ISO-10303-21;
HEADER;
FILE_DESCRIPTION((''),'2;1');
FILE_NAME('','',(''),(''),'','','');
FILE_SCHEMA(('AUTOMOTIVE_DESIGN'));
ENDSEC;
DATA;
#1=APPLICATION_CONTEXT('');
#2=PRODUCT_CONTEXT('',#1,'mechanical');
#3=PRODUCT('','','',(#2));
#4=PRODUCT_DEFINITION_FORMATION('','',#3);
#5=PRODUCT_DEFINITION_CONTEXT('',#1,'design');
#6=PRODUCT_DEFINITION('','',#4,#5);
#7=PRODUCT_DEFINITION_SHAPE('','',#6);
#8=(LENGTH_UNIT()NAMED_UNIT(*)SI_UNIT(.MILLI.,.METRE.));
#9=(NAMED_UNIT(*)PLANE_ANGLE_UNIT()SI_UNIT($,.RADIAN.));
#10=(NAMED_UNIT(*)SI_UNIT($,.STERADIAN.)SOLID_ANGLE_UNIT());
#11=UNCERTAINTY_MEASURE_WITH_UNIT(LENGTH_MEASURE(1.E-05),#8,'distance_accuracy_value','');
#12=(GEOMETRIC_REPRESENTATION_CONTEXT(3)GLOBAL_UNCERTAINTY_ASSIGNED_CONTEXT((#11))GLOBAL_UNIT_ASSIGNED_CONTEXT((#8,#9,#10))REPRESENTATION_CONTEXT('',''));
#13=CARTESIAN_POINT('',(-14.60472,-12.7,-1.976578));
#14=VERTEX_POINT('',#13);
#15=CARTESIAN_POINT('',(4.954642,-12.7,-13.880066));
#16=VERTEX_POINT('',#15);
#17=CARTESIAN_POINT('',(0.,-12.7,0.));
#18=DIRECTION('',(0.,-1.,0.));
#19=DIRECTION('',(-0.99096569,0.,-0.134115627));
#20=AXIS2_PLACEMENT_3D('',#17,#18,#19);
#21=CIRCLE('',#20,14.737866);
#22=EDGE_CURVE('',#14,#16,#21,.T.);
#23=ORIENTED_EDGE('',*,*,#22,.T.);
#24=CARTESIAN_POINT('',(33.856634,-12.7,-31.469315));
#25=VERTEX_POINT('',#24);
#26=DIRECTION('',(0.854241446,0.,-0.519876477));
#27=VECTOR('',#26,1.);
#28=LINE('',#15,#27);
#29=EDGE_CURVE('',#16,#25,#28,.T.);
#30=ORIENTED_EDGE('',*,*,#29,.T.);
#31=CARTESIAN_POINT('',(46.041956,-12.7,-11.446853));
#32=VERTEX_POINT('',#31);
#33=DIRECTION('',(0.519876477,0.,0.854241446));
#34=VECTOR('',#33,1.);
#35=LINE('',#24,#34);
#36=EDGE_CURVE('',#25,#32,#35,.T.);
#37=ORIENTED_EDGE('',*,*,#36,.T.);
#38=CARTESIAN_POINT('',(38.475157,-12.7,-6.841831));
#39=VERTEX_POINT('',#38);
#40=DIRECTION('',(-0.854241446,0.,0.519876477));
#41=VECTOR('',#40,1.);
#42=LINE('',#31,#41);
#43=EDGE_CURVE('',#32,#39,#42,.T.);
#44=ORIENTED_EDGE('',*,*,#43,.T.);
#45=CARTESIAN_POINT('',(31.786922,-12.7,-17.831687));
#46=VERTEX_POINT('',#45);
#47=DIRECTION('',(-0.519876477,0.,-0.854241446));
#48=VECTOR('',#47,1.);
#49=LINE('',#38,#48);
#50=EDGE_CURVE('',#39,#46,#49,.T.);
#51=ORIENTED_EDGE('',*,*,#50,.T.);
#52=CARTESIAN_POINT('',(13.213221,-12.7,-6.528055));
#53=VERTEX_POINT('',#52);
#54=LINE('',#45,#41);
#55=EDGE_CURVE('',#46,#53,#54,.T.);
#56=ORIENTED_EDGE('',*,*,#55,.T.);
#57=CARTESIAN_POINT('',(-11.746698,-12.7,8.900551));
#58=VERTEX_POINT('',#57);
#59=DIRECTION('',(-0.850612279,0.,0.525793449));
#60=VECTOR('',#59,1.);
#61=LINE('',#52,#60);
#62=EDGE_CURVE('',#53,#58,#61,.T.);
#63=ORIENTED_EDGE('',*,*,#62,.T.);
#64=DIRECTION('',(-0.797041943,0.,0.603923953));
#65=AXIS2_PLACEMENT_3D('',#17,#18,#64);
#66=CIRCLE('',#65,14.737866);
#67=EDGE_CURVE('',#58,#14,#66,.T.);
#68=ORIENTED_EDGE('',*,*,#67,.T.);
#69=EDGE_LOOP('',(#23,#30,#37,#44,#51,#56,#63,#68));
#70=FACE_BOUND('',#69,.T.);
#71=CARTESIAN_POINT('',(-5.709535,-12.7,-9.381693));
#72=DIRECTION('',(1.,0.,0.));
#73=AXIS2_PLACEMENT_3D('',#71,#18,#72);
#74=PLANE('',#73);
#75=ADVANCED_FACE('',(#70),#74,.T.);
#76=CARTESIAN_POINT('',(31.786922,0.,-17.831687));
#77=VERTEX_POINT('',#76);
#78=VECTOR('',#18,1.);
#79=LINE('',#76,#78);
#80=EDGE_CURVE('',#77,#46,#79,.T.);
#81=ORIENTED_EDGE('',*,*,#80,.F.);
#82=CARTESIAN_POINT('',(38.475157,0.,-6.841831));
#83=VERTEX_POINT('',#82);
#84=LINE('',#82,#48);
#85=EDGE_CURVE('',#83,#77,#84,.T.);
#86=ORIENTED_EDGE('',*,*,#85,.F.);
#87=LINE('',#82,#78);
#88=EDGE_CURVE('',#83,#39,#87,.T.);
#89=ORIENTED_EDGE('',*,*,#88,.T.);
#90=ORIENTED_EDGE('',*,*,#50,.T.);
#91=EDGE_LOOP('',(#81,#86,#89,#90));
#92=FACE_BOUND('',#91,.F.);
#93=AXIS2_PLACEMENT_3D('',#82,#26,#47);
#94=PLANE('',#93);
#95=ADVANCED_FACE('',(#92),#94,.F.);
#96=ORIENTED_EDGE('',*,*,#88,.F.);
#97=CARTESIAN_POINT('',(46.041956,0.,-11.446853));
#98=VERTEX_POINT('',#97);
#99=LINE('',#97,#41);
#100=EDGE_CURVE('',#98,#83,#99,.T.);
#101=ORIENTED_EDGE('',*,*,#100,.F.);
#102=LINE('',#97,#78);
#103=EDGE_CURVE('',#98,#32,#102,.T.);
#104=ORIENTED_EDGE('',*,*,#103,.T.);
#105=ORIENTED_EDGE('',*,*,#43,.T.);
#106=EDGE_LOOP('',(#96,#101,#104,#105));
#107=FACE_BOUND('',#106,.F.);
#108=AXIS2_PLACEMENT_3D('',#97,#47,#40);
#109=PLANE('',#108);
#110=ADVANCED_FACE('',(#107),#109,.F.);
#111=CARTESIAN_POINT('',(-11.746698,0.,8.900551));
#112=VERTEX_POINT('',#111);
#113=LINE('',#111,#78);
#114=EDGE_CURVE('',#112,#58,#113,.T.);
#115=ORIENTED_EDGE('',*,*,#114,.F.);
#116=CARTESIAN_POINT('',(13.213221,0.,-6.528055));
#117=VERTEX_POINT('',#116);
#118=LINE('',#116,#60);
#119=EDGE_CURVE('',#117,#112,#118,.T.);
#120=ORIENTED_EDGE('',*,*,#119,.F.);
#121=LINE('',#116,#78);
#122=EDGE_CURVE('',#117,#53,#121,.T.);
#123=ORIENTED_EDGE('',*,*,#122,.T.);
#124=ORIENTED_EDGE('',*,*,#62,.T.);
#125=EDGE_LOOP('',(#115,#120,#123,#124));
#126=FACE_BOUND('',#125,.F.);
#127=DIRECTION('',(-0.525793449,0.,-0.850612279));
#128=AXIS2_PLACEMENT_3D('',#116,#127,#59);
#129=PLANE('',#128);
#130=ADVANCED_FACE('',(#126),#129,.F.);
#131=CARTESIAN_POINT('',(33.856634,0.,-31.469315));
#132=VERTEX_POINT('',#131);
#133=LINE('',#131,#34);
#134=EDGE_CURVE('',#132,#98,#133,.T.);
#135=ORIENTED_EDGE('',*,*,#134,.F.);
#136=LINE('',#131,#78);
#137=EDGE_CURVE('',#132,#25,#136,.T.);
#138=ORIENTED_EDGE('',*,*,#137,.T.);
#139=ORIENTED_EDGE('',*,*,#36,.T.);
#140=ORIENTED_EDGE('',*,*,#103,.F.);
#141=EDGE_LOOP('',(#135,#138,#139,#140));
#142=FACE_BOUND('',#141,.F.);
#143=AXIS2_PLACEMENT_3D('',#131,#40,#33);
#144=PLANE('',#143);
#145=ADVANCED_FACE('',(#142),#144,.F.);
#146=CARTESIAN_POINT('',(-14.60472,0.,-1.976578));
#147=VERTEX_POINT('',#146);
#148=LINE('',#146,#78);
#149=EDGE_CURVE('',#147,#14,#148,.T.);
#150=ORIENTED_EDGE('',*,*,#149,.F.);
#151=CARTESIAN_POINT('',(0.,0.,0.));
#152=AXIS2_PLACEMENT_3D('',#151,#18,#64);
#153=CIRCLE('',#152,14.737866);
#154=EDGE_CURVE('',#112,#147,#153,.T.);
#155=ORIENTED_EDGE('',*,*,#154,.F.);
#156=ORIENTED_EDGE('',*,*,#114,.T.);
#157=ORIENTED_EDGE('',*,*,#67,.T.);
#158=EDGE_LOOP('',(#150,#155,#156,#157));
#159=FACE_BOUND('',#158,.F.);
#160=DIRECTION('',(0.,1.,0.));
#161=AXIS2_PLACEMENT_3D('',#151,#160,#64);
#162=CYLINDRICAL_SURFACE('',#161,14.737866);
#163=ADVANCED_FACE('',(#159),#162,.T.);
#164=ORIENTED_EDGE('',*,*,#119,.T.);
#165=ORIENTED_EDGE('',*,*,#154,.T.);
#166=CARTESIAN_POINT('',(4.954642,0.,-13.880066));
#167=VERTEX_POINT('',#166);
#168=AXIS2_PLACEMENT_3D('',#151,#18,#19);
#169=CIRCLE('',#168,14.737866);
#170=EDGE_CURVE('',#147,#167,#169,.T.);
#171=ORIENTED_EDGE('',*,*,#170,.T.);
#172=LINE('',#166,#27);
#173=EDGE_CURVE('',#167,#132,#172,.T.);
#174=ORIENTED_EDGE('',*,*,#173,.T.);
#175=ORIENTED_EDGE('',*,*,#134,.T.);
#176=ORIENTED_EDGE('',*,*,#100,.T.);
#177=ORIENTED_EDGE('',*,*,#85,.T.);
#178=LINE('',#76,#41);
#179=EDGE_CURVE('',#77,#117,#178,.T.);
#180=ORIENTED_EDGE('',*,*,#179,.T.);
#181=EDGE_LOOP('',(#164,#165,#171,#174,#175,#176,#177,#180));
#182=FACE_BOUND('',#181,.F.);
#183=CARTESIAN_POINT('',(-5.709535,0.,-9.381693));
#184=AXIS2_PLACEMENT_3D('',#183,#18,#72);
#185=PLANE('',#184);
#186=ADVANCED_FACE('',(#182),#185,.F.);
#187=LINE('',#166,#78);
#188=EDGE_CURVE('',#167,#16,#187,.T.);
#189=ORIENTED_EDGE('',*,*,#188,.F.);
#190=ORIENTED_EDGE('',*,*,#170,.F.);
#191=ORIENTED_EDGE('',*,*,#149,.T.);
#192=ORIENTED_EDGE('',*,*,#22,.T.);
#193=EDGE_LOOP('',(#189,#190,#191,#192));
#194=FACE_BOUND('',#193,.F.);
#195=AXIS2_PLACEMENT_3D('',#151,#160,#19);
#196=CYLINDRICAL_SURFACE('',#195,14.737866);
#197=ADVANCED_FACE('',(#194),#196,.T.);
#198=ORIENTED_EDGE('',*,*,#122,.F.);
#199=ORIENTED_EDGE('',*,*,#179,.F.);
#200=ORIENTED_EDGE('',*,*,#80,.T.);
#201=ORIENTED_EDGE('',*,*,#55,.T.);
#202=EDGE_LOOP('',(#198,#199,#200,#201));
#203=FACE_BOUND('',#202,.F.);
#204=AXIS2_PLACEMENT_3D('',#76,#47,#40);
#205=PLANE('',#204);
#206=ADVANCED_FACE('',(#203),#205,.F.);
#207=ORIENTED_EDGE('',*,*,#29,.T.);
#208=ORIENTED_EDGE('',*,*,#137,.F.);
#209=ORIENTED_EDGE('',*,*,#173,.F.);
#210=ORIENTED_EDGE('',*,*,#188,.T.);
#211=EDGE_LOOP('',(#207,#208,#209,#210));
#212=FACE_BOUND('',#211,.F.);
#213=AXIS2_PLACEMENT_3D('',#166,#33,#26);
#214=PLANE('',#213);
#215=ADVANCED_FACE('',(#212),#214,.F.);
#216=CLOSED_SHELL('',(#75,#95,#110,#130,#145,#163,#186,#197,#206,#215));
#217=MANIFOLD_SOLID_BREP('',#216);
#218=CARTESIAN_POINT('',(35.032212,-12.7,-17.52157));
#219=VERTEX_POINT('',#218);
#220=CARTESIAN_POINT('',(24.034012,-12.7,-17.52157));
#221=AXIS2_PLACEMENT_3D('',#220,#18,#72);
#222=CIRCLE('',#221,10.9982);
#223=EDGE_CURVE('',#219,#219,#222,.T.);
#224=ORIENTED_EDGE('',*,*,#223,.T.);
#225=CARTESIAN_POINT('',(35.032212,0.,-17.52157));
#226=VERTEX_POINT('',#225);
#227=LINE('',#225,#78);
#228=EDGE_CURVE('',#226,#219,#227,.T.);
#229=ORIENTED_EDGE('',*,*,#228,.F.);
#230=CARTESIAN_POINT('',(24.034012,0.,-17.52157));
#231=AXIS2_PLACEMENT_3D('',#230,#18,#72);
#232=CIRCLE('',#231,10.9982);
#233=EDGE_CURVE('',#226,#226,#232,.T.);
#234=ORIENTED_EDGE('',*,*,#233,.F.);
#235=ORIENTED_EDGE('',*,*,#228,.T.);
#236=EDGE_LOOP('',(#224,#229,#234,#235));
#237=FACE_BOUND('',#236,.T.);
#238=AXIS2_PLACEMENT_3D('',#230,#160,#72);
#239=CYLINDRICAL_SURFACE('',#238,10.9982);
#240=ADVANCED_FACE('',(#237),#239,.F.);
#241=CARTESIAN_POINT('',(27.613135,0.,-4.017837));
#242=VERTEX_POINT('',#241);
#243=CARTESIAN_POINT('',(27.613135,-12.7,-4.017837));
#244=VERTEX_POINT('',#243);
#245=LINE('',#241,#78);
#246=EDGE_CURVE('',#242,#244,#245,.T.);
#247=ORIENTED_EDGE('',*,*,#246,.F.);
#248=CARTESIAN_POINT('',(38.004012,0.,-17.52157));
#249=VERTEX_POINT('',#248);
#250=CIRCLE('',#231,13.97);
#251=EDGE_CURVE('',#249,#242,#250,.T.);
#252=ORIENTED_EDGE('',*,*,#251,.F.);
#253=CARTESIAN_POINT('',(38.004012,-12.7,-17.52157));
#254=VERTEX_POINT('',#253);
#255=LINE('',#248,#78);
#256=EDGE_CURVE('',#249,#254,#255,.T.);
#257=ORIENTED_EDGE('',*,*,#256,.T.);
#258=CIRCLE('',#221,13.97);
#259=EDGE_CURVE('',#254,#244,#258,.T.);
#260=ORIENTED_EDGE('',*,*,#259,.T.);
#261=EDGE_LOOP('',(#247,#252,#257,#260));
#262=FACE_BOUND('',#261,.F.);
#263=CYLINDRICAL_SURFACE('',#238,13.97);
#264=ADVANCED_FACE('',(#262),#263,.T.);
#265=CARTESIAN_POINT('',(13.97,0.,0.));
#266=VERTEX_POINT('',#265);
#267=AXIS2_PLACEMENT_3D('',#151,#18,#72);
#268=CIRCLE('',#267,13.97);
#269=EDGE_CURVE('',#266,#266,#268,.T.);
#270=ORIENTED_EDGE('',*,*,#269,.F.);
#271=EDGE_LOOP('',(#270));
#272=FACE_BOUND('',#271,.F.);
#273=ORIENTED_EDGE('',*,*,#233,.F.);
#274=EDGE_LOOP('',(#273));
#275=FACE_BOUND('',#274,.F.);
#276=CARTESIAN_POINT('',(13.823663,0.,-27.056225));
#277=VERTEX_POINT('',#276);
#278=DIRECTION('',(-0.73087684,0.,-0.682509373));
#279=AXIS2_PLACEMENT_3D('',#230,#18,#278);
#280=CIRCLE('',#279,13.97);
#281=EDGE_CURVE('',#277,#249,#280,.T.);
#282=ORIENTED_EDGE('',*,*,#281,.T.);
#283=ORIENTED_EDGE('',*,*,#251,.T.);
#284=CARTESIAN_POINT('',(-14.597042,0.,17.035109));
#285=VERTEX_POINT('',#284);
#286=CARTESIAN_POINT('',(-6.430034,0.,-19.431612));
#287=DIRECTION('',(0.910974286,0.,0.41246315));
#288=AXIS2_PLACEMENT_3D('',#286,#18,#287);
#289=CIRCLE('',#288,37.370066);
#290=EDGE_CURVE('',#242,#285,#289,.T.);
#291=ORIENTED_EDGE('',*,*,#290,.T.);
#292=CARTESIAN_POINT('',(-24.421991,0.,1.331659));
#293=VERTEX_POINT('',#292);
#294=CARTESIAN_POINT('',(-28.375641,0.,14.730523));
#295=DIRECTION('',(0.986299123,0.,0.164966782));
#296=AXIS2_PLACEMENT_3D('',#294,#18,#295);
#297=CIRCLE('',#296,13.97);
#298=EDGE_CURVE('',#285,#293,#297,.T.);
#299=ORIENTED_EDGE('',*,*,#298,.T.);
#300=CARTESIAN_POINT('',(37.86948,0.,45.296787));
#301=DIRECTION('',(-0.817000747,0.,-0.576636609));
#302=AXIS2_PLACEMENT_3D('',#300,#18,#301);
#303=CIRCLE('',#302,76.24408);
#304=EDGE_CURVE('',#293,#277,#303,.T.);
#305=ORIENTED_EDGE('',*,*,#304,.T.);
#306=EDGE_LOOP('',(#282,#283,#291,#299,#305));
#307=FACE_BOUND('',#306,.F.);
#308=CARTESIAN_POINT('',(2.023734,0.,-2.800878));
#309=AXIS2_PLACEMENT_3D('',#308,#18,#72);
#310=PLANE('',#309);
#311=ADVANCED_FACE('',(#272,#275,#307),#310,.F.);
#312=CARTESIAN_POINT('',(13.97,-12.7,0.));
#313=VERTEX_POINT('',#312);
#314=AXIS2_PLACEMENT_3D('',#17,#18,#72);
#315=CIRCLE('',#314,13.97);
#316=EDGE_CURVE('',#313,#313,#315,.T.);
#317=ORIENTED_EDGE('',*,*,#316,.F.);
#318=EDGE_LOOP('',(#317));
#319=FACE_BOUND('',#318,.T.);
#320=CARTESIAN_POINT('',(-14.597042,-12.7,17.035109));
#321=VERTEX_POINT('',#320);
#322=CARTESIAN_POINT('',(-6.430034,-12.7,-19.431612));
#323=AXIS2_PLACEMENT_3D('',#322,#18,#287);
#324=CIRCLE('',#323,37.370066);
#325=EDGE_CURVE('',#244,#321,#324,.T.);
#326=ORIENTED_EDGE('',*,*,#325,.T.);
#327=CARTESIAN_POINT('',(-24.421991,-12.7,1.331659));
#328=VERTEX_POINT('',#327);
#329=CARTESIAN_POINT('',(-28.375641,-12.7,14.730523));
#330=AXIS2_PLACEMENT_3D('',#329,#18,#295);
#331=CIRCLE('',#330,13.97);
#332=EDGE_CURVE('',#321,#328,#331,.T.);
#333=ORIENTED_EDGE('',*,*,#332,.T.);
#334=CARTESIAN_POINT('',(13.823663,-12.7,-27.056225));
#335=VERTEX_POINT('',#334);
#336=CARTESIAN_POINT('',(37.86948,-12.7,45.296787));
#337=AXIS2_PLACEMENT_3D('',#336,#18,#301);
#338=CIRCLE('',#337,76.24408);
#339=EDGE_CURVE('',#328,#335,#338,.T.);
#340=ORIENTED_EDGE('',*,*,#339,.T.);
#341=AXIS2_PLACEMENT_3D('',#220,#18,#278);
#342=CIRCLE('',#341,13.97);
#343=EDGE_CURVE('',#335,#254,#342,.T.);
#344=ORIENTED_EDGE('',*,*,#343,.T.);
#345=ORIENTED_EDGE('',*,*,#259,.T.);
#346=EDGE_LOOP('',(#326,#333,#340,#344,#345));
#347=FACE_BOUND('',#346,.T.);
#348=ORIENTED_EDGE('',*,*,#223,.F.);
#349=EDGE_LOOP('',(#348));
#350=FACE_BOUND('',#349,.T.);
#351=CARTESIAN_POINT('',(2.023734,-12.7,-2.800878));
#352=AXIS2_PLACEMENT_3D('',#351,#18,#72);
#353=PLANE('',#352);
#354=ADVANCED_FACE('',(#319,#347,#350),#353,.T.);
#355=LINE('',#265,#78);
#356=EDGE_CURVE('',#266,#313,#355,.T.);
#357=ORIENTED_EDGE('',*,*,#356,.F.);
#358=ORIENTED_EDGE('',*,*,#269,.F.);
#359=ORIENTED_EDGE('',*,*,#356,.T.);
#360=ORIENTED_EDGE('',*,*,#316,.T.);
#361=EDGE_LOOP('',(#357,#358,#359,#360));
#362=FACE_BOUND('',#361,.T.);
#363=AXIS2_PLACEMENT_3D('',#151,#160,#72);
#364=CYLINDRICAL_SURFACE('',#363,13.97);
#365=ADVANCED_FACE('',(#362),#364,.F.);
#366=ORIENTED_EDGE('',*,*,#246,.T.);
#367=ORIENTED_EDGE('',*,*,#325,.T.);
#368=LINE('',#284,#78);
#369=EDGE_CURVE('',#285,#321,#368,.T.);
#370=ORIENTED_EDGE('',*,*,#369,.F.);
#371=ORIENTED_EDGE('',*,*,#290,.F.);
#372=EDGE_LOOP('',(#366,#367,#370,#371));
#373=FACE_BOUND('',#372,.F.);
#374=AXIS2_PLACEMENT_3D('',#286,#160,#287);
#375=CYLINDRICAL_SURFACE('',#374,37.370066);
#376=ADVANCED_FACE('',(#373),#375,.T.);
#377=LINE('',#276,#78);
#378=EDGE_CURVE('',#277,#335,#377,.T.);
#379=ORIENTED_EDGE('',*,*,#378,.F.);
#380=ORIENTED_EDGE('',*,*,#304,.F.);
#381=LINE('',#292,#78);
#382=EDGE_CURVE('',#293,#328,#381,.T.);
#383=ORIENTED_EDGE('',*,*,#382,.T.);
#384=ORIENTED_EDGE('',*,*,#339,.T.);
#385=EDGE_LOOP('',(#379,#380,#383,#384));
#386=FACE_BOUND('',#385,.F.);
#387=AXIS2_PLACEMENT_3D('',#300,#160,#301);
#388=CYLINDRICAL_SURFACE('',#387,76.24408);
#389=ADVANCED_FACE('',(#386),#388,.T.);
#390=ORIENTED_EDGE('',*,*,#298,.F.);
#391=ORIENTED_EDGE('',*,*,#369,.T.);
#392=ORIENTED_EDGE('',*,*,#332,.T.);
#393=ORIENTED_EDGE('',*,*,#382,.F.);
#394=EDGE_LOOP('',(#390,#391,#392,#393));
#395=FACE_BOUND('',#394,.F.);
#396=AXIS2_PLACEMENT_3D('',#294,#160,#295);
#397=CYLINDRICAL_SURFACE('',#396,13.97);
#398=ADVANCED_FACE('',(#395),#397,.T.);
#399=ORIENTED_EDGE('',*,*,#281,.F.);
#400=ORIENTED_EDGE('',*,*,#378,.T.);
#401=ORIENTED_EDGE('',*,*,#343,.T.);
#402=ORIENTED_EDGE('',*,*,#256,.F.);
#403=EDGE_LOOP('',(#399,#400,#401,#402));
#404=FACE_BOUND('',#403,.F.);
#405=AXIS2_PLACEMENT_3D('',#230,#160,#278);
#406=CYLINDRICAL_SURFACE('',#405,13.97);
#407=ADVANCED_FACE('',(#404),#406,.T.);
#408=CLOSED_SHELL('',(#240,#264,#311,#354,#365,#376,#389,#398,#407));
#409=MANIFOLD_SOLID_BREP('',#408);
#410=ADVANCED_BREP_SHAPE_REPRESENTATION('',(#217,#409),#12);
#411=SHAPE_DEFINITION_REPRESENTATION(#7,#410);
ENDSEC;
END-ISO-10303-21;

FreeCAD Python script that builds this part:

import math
import FreeCAD as App
import Part
import Sketcher
from FreeCAD import Vector
Q = App.Units.Quantity

doc = App.newDocument("Part")
body = doc.addObject("PartDesign::Body", "Body")

sketch1 = body.newObject("Sketcher::SketchObject", "Sketch")
sketch1.AttachmentSupport = (doc.getObject("XZ_Plane"), [""])
sketch1.MapMode = "FlatFace"
sketch1.addGeometry([
    Part.ArcOfCircle(Part.Circle(Vector(0, 0, 0), Vector(0, 0, 1), 15), math.radians(-172), math.radians(-70)),
    Part.LineSegment(Vector(5, -14, 0), Vector(34, -31, 0)),
    Part.LineSegment(Vector(34, -31, 0), Vector(46, -11, 0)),
    Part.LineSegment(Vector(46, -11, 0), Vector(38, -7, 0)),
    Part.LineSegment(Vector(38, -7, 0), Vector(32, -18, 0)),
    Part.LineSegment(Vector(32, -18, 0), Vector(13, -7, 0)),
    Part.LineSegment(Vector(13, -7, 0), Vector(-12, 9, 0)),
    Part.ArcOfCircle(Part.Circle(Vector(0, 0, 0), Vector(0, 0, 1), 15), math.radians(143), math.radians(188)),
], False)
sketch1.addConstraint([
    Sketcher.Constraint("Coincident", 0, 2, 1, 1),
    Sketcher.Constraint("Coincident", 1, 2, 2, 1),
    Sketcher.Constraint("Coincident", 2, 2, 3, 1),
    Sketcher.Constraint("Coincident", 3, 2, 4, 1),
    Sketcher.Constraint("Coincident", 4, 2, 5, 1),
    Sketcher.Constraint("Coincident", 5, 2, 6, 1),
    Sketcher.Constraint("Coincident", 6, 2, 7, 1),
    Sketcher.Constraint("Tangent", 7, 2, 0, 1),
    Sketcher.Constraint("Coincident", 0, 3, -1, 1),
    Sketcher.Constraint("Equal", 0, 7),
    Sketcher.Constraint("Perpendicular", 1, 2),
    Sketcher.Constraint("Perpendicular", 2, 3),
    Sketcher.Constraint("Perpendicular", 3, 4),
    Sketcher.Constraint("Perpendicular", 4, 5),
    Sketcher.Constraint("Radius", 0, 14.737866),
    Sketcher.Constraint("DistanceY", 2, 2, 3, 2, Q("0.1813001 in")),
    Sketcher.Constraint("DistanceX", 3, 2, 2, 2, 7.566799),
    Sketcher.Constraint("DistanceX", 5, 2, 4, 2, 18.573702),
    Sketcher.Constraint("Distance", 2, 23.438879),
    Sketcher.Constraint("DistanceY", 3, 2, -1, 1, 6.841831),
    Sketcher.Constraint("DistanceX", -1, 1, 5, 2, 13.213221),
    Sketcher.Constraint("DistanceY", -1, 1, 6, 2, 8.900551),
    Sketcher.Constraint("DistanceX", 7, 2, -1, 1, 14.60472),
    Sketcher.Constraint("DistanceX", 0, 2, 1, 2, 28.901992),
])
pad1 = body.newObject("PartDesign::Pad", "Pad")
pad1.Profile = sketch1
pad1.Length = Q("0.5 in")
body2 = doc.addObject("PartDesign::Body", "Body001")

sketch2 = body2.newObject("Sketcher::SketchObject", "Sketch001")
sketch2.AttachmentSupport = (doc.getObject("XZ_Plane001"), [""])
sketch2.MapMode = "FlatFace"
sketch2.addGeometry([
    Part.ArcOfCircle(Part.Circle(Vector(-6, -19, 0), Vector(0, 0, 1), 37), math.radians(24), math.radians(103)),
    Part.ArcOfCircle(Part.Circle(Vector(-28, 15, 0), Vector(0, 0, 1), 14), math.radians(9), math.radians(286)),
    Part.ArcOfCircle(Part.Circle(Vector(38, 45, 0), Vector(0, 0, 1), 76), math.radians(-145), math.radians(-108)),
    Part.ArcOfCircle(Part.Circle(Vector(24, -18, 0), Vector(0, 0, 1), 14), math.radians(-137), math.radians(0)),
    Part.ArcOfCircle(Part.Circle(Vector(24, -18, 0), Vector(0, 0, 1), 14), math.radians(0), math.radians(75)),
    Part.Circle(Vector(24, -18, 0), Vector(0, 0, 1), 11),
    Part.Circle(Vector(0, 0, 0), Vector(0, 0, 1), 14),
], False)
sketch2.addConstraint([
    Sketcher.Constraint("Coincident", 0, 2, 1, 1),
    Sketcher.Constraint("Coincident", 1, 2, 2, 1),
    Sketcher.Constraint("Coincident", 2, 2, 3, 1),
    Sketcher.Constraint("Tangent", 3, 2, 4, 1),
    Sketcher.Constraint("Coincident", 4, 2, 0, 1),
    Sketcher.Constraint("Coincident", 6, 3, -1, 1),
    Sketcher.Constraint("Coincident", 5, 3, 3, 3),
    Sketcher.Constraint("Equal", 1, 3),
    Sketcher.Constraint("Equal", 3, 4),
    Sketcher.Constraint("Equal", 4, 6),
    Sketcher.Constraint("Horizontal", 5, 3, 3, 2),
    Sketcher.Constraint("Diameter", 6, Q("1.1 in")),
    Sketcher.Constraint("Diameter", 5, Q("0.866 in")),
    Sketcher.Constraint("Radius", 2, 76.24408),
    Sketcher.Constraint("Radius", 0, 37.370066),
    Sketcher.Constraint("DistanceY", 0, 3, 2, 3, 64.7284),
    Sketcher.Constraint("DistanceX", 1, 3, 0, 2, 13.778599),
    Sketcher.Constraint("DistanceX", 1, 3, -1, 1, 28.375641),
    Sketcher.Constraint("DistanceX", -1, 1, 2, 3, 37.86948),
    Sketcher.Constraint("DistanceY", 3, 3, -1, 1, 17.52157),
    Sketcher.Constraint("DistanceY", -1, 1, 0, 2, 17.035109),
    Sketcher.Constraint("DistanceX", 1, 2, -1, 1, 24.421991),
    Sketcher.Constraint("DistanceX", 2, 2, 3, 3, 10.210349),
])
pad2 = body2.newObject("PartDesign::Pad", "Pad001")
pad2.Profile = sketch2
pad2.Length = Q("0.5 in")

doc.recompute()
